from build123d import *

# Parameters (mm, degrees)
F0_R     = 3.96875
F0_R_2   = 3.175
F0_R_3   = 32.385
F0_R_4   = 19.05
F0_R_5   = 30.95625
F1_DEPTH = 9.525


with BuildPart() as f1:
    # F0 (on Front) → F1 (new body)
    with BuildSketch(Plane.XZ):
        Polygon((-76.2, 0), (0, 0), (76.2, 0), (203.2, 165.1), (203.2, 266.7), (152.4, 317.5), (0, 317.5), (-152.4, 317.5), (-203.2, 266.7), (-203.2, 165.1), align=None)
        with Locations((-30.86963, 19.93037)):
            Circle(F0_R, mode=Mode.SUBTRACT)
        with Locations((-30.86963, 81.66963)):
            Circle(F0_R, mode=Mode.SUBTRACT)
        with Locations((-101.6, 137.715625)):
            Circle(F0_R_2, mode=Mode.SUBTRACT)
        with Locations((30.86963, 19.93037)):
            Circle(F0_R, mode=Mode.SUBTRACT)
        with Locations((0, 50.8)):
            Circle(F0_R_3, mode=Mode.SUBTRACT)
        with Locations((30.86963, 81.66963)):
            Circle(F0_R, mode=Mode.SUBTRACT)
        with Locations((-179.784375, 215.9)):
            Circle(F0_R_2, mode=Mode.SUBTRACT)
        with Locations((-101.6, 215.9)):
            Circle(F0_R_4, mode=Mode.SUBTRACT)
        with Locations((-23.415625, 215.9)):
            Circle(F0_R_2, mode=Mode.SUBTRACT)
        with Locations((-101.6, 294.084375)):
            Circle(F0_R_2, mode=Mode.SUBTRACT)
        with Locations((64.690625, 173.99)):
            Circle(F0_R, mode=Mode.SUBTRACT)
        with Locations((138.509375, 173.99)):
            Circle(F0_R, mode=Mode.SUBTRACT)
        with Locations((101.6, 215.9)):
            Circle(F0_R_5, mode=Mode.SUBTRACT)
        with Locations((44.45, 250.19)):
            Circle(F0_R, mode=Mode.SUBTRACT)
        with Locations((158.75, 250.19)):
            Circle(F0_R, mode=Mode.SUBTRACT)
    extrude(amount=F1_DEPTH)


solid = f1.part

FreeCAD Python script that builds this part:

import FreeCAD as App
import Part
import Sketcher

V = App.Vector
Q = App.Units.Quantity


def add_polygon(sketch, points):
    """Adds a closed chain of lines whose ends are joined by coincident constraints."""
    first, n = sketch.GeometryCount, len(points)
    for a, b in zip(points, points[1:] + points[:1]):
        sketch.addGeometry(Part.LineSegment(App.Vector(*a, 0), App.Vector(*b, 0)), False)
    for i in range(n):
        sketch.addConstraint(Sketcher.Constraint("Coincident", first + i, 2, first + (i + 1) % n, 1))

doc = App.newDocument("Part")
body = doc.addObject("PartDesign::Body", "Body")

sketch1 = body.newObject("Sketcher::SketchObject", "Sketch")
sketch1.AttachmentSupport = (doc.getObject("XZ_Plane"), [""])
sketch1.MapMode = "FlatFace"
add_polygon(sketch1, [(-76.2, 0), (76.2, 0), (203.2, 165.1), (203.2, 266.7), (152.4, 317.5), (-152.4, 317.5), (-203.2, 266.7), (-203.2, 165.1)])
sketch1.addGeometry(Part.Circle(V(-30.9, 19.9, 0), V(0, 0, 1), 4), False)
sketch1.addGeometry(Part.Circle(V(-30.9, 81.7, 0), V(0, 0, 1), 4), False)
sketch1.addGeometry(Part.Circle(V(-101.6, 137.7, 0), V(0, 0, 1), 3.2), False)
sketch1.addGeometry(Part.Circle(V(30.9, 19.9, 0), V(0, 0, 1), 4), False)
sketch1.addGeometry(Part.Circle(V(0, 50.8, 0), V(0, 0, 1), 32.4), False)
sketch1.addGeometry(Part.Circle(V(30.9, 81.7, 0), V(0, 0, 1), 4), False)
sketch1.addGeometry(Part.Circle(V(-179.8, 215.9, 0), V(0, 0, 1), 3.2), False)
sketch1.addGeometry(Part.Circle(V(-101.6, 215.9, 0), V(0, 0, 1), 19.1), False)
sketch1.addGeometry(Part.Circle(V(-23.4, 215.9, 0), V(0, 0, 1), 3.2), False)
sketch1.addGeometry(Part.Circle(V(-101.6, 294.1, 0), V(0, 0, 1), 3.2), False)
sketch1.addGeometry(Part.Circle(V(64.7, 174, 0), V(0, 0, 1), 4), False)
sketch1.addGeometry(Part.Circle(V(138.5, 174, 0), V(0, 0, 1), 4), False)
sketch1.addGeometry(Part.Circle(V(101.6, 215.9, 0), V(0, 0, 1), 31), False)
sketch1.addGeometry(Part.Circle(V(44.5, 250.2, 0), V(0, 0, 1), 4), False)
sketch1.addGeometry(Part.Circle(V(158.8, 250.2, 0), V(0, 0, 1), 4), False)
sketch1.addConstraint(Sketcher.Constraint("Horizontal", 0))
sketch1.addConstraint(Sketcher.Constraint("Vertical", 2))
sketch1.addConstraint(Sketcher.Constraint("Horizontal", 4))
sketch1.addConstraint(Sketcher.Constraint("Vertical", 6))
sketch1.addConstraint(Sketcher.Constraint("Equal", 8, 9))
sketch1.addConstraint(Sketcher.Constraint("Equal", 9, 11))
sketch1.addConstraint(Sketcher.Constraint("Equal", 11, 13))
sketch1.addConstraint(Sketcher.Constraint("Equal", 10, 14))
sketch1.addConstraint(Sketcher.Constraint("Equal", 14, 16))
sketch1.addConstraint(Sketcher.Constraint("Equal", 16, 17))
sketch1.addConstraint(Sketcher.Constraint("Equal", 13, 18))
sketch1.addConstraint(Sketcher.Constraint("Equal", 18, 19))
sketch1.addConstraint(Sketcher.Constraint("Equal", 19, 21))
sketch1.addConstraint(Sketcher.Constraint("Equal", 21, 22))
sketch1.addConstraint(Sketcher.Constraint("Symmetric", 0, 2, 7, 2, -1, 1))
sketch1.addConstraint(Sketcher.Constraint("Symmetric", 8, 3, 11, 3, -2))
sketch1.addConstraint(Sketcher.Constraint("Symmetric", 9, 3, 13, 3, -2))
sketch1.addConstraint(Sketcher.Constraint("Symmetric", 15, 3, 20, 3, -2))
sketch1.addConstraint(Sketcher.Constraint("Symmetric", 2, 2, 5, 2, -2))
sketch1.addConstraint(Sketcher.Constraint("PointOnObject", 12, 3, -2))
sketch1.addConstraint(Sketcher.Constraint("Perpendicular", 3, 5))
sketch1.addConstraint(Sketcher.Constraint("Horizontal", 14, 3, 15, 3))
sketch1.addConstraint(Sketcher.Constraint("Horizontal", 15, 3, 16, 3))
sketch1.addConstraint(Sketcher.Constraint("Horizontal", 18, 3, 19, 3))
sketch1.addConstraint(Sketcher.Constraint("Horizontal", 21, 3, 22, 3))
sketch1.addConstraint(Sketcher.Constraint("Horizontal", 1, 2, 6, 2))
sketch1.addConstraint(Sketcher.Constraint("Vertical", 8, 3, 9, 3))
sketch1.addConstraint(Sketcher.Constraint("Vertical", 10, 3, 15, 3))
sketch1.addConstraint(Sketcher.Constraint("Vertical", 15, 3, 17, 3))
sketch1.addConstraint(Sketcher.Constraint("Equal", 3, 5))
sketch1.addConstraint(Sketcher.Constraint("Diameter", 15, Q("1.5 in")))
sketch1.addConstraint(Sketcher.Constraint("Diameter", 10, Q("0.25 in")))
sketch1.addConstraint(Sketcher.Constraint("Diameter", 12, Q("2.55 in")))
sketch1.addConstraint(Sketcher.Constraint("DistanceX", 0, 1, 0, 2, Q("6 in")))
sketch1.addConstraint(Sketcher.Constraint("DistanceX", 4, 2, 4, 1, Q("12 in")))
sketch1.addConstraint(Sketcher.Constraint("DistanceY", 2, 1, 2, 2, Q("4 in")))
sketch1.addConstraint(Sketcher.Constraint("Diameter", 8, Q("0.3125 in")))
sketch1.addConstraint(Sketcher.Constraint("Diameter", 20, Q("2.4375 in")))
sketch1.addConstraint(Sketcher.Constraint("DistanceX", 10, 3, -1, 1, Q("4 in")))
sketch1.addConstraint(Sketcher.Constraint("DistanceY", -1, 1, 12, 3, Q("2 in")))
sketch1.addConstraint(Sketcher.Constraint("DistanceX", -1, 1, 1, 2, Q("8 in")))
sketch1.addConstraint(Sketcher.Constraint("DistanceY", 18, 3, 21, 3, Q("3 in")))
sketch1.addConstraint(Sketcher.Constraint("DistanceY", 1, 2, 20, 3, Q("2 in")))
sketch1.addConstraint(Sketcher.Constraint("DistanceY", -1, 1, 14, 3, Q("8.5 in")))
sketch1.addConstraint(Sketcher.Constraint("DistanceX", 21, 3, 22, 3, Q("4.5 in")))
sketch1.addConstraint(Sketcher.Constraint("DistanceY", -1, 1, 18, 3, Q("6.85 in")))
sketch1.addConstraint(Sketcher.Constraint("DistanceX", -1, 1, 21, 3, Q("1.75 in")))
sketch1.addConstraint(Sketcher.Constraint("DistanceY", -1, 1, 10, 3, Q("5.421875 in")))
sketch1.addConstraint(Sketcher.Constraint("DistanceX", 14, 3, -1, 1, Q("7.078125 in")))
sketch1.addConstraint(Sketcher.Constraint("DistanceX", 16, 3, -1, 1, Q("0.921875 in")))
sketch1.addConstraint(Sketcher.Constraint("DistanceY", -1, 1, 17, 3, Q("11.578125 in")))
sketch1.addConstraint(Sketcher.Constraint("DistanceX", -1, 1, 18, 3, Q("2.546875 in")))
sketch1.addConstraint(Sketcher.Constraint("DistanceX", -1, 1, 19, 3, Q("5.453125 in")))
sketch1.addConstraint(Sketcher.Constraint("DistanceX", 8, 3, -1, 1, Q("30.86963 mm")))
sketch1.addConstraint(Sketcher.Constraint("DistanceY", -1, 1, 8, 3, Q("19.93037 mm")))
sketch1.addConstraint(Sketcher.Constraint("DistanceY", -1, 1, 9, 3, Q("81.66963 mm")))
pad1 = body.newObject("PartDesign::Pad", "Pad")
pad1.Profile = sketch1
pad1.Length = Q("0.375 in")

doc.recompute()
